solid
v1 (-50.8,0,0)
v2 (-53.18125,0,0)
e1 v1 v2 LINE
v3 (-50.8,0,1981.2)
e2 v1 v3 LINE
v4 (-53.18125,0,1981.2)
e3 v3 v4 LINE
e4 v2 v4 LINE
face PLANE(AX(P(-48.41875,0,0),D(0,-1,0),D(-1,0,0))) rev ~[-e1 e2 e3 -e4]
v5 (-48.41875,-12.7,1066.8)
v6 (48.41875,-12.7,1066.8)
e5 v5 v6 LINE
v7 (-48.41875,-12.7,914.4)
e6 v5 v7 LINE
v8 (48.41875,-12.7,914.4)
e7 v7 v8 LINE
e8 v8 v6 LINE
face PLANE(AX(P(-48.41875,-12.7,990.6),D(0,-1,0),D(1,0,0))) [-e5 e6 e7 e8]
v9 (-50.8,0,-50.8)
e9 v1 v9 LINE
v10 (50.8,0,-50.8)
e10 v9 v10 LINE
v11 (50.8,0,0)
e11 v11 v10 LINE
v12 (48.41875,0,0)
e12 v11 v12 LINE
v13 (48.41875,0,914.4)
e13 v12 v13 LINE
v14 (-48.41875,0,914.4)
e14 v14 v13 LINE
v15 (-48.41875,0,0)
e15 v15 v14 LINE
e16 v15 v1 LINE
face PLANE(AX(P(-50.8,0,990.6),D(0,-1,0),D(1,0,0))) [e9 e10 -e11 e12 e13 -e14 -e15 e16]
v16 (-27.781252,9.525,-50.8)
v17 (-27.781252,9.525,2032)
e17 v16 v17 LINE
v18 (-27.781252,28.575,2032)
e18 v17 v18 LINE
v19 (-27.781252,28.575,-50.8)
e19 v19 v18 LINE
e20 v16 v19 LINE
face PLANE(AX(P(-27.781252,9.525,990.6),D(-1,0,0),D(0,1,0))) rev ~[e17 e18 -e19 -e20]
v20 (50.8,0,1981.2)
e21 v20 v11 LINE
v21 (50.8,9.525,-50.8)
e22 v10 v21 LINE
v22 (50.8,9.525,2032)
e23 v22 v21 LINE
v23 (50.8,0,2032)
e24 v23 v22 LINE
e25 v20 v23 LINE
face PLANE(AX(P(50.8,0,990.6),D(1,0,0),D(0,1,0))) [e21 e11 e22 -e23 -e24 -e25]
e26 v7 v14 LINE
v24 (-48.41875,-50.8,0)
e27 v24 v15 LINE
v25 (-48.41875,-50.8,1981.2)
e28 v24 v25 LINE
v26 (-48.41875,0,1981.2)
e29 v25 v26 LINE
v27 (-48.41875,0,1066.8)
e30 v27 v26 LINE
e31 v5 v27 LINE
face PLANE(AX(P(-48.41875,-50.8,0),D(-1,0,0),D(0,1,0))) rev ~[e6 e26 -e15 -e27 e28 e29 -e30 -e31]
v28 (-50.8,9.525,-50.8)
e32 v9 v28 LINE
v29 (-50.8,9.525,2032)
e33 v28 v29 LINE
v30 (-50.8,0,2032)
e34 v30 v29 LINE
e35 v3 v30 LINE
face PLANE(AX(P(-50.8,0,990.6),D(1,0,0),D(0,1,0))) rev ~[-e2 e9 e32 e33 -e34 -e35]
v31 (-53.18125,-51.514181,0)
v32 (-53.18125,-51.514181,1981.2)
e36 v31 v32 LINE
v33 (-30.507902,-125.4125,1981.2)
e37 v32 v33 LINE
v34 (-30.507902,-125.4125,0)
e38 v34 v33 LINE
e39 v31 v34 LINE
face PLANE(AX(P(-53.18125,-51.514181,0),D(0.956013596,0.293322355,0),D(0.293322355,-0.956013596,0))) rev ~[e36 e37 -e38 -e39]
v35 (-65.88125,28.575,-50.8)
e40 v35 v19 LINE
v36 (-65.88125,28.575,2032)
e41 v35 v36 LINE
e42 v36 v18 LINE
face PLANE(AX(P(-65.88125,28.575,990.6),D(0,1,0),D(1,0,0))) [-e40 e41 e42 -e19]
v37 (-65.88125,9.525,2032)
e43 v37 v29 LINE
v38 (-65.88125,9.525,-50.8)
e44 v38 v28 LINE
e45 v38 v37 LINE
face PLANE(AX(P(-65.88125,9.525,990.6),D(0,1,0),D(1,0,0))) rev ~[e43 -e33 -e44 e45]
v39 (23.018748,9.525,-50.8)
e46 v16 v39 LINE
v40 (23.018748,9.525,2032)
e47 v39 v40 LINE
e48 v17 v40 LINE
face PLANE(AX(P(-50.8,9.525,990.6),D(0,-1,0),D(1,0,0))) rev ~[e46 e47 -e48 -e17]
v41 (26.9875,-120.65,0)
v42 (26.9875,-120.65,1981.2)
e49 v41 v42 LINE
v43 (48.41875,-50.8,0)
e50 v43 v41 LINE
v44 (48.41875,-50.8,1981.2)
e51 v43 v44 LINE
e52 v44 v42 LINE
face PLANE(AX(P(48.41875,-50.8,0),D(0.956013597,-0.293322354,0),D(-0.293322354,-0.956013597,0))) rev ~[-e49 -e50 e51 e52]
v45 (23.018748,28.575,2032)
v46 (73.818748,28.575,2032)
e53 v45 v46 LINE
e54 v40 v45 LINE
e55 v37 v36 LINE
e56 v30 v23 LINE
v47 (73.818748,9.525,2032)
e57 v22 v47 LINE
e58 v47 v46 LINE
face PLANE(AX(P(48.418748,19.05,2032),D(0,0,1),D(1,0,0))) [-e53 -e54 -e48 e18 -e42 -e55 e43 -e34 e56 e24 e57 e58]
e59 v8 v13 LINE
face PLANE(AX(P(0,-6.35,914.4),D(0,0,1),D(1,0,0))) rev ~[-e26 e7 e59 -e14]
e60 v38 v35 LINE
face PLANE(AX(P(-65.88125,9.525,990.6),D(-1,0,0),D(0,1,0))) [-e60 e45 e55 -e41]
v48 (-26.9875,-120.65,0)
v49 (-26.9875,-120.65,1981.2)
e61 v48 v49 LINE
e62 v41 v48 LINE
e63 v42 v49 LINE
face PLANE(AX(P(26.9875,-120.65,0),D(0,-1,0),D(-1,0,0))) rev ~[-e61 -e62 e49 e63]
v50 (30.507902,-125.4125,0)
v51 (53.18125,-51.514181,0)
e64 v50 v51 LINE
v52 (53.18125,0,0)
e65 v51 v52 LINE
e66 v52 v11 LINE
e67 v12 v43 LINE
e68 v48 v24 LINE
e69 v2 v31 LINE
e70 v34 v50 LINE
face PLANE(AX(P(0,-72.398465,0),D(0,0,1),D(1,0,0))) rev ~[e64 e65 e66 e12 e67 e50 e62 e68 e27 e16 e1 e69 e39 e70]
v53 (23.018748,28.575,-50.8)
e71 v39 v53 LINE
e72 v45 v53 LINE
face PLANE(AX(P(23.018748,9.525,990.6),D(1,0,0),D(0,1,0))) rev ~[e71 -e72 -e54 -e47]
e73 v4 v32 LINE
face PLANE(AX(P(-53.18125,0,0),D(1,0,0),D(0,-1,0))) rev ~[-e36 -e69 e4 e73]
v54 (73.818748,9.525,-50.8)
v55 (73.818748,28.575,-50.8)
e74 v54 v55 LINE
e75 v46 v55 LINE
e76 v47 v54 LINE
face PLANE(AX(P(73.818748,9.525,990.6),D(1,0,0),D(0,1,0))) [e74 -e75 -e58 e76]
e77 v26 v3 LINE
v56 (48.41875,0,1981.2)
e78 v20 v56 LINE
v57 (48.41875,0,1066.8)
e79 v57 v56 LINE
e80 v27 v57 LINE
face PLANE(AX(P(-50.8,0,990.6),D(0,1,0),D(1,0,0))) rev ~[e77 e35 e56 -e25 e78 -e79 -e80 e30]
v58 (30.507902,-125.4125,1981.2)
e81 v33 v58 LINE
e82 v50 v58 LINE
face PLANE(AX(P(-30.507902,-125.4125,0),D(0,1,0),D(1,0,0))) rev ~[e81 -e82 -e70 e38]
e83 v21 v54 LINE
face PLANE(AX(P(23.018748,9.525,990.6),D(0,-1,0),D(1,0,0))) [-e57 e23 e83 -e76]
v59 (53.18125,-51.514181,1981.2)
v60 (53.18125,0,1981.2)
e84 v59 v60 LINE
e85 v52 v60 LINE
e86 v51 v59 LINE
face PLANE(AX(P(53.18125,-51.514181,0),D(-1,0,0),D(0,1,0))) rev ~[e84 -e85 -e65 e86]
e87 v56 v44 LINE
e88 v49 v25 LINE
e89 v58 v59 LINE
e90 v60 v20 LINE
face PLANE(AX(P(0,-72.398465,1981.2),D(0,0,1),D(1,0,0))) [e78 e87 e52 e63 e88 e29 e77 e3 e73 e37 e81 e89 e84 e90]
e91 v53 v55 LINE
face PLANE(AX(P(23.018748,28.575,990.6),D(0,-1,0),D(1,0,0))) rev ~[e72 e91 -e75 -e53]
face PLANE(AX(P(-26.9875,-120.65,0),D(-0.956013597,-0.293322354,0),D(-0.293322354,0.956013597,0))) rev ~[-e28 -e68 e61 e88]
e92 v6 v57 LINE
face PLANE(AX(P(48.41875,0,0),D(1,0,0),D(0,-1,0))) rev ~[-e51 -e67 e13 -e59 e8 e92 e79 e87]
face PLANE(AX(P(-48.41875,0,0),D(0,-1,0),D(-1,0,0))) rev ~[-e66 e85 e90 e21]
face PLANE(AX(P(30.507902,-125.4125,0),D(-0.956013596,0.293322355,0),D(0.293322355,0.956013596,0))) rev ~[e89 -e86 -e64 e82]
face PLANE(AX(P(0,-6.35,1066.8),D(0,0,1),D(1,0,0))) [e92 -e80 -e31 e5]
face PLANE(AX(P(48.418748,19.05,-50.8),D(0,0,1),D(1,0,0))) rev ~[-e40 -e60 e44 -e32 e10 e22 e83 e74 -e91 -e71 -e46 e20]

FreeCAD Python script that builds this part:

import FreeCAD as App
import Part
import Sketcher

V = App.Vector
Q = App.Units.Quantity

doc = App.newDocument("Part")
body = doc.addObject("PartDesign::Body", "Body")

# Sketch on XY plane
sketch1 = doc.addObject("Sketcher::SketchObject", "Sketch")
body.addObject(sketch1)
sketch1.AttachmentSupport = (doc.XY_Plane, [""])
sketch1.MapMode = "FlatFace"
sketch1.addGeometry([
    Part.LineSegment(V(-48.4, -50.8, 0), V(-48.4, 0, 0)),  # 0
    Part.LineSegment(V(-48.4, 0, 0), V(-53.2, 0, 0)),  # 1
    Part.LineSegment(V(-53.2, 0, 0), V(-53.2, -51.5, 0)),  # 2
    Part.LineSegment(V(-53.2, -51.5, 0), V(-30.5, -125.4, 0)),  # 3
    Part.LineSegment(V(-30.5, -125.4, 0), V(30.5, -125.4, 0)),  # 4
    Part.LineSegment(V(30.5, -125.4, 0), V(53.2, -51.5, 0)),  # 5
    Part.LineSegment(V(53.2, -51.5, 0), V(53.2, 0, 0)),  # 6
    Part.LineSegment(V(53.2, 0, 0), V(48.4, 0, 0)),  # 7
    Part.LineSegment(V(48.4, 0, 0), V(48.4, -50.8, 0)),  # 8
    Part.LineSegment(V(48.4, -50.8, 0), V(27, -120.7, 0)),  # 9
    Part.LineSegment(V(27, -120.7, 0), V(-27, -120.7, 0)),  # 10
    Part.LineSegment(V(-27, -120.7, 0), V(-48.4, -50.8, 0)),  # 11
], False)
sketch1.addConstraint([
    Sketcher.Constraint("Coincident", 0, 2, 1, 1),
    Sketcher.Constraint("Coincident", 1, 2, 2, 1),
    Sketcher.Constraint("Coincident", 2, 2, 3, 1),
    Sketcher.Constraint("Coincident", 3, 2, 4, 1),
    Sketcher.Constraint("Coincident", 4, 2, 5, 1),
    Sketcher.Constraint("Coincident", 5, 2, 6, 1),
    Sketcher.Constraint("Coincident", 6, 2, 7, 1),
    Sketcher.Constraint("Coincident", 7, 2, 8, 1),
    Sketcher.Constraint("Coincident", 8, 2, 9, 1),
    Sketcher.Constraint("Coincident", 9, 2, 10, 1),
    Sketcher.Constraint("Coincident", 10, 2, 11, 1),
    Sketcher.Constraint("Coincident", 11, 2, 0, 1),
    Sketcher.Constraint("Vertical", 0),
    Sketcher.Constraint("Horizontal", 1),
    Sketcher.Constraint("Vertical", 2),
    Sketcher.Constraint("Horizontal", 4),
    Sketcher.Constraint("Vertical", 6),
    Sketcher.Constraint("Horizontal", 7),
    Sketcher.Constraint("Vertical", 8),
    Sketcher.Constraint("Horizontal", 10),
    Sketcher.Constraint("Symmetric", 1, 2, 6, 2, -1, 1),
    Sketcher.Constraint("Symmetric", 0, 2, 7, 2, -2),
    Sketcher.Constraint("Parallel", 5, 9),
    Sketcher.Constraint("Parallel", 3, 11),
    Sketcher.Constraint("Horizontal", 2, 2, 5, 2),
    Sketcher.Constraint("Horizontal", 8, 2, 11, 2),
    Sketcher.Constraint("Equal", 3, 5),
    Sketcher.Constraint("DistanceY", 0, 1, 0, 2, Q("2 in")),
    Sketcher.Constraint("DistanceX", 0, 2, 5, 2, Q("4 in")),
    Sketcher.Constraint("DistanceX", 1, 2, 1, 1, Q("0.1875 in")),
    Sketcher.Constraint("DistanceX", 10, 2, 10, 1, Q("2.125 in")),
    Sketcher.Constraint("DistanceY", 9, 2, -1, 1, Q("4.75 in")),
    Sketcher.Constraint("DistanceY", 3, 2, -1, 1, Q("4.9375 in")),
    Sketcher.Constraint("DistanceY", 2, 2, 2, 1, Q("51.514181 mm")),
])
pad1 = doc.addObject("PartDesign::Pad", "Pad")
body.addObject(pad1)
pad1.Profile = sketch1
pad1.Length = Q("78 in")

# Sketch on XY plane
sketch2 = doc.addObject("Sketcher::SketchObject", "Sketch001")
body.addObject(sketch2)
sketch2.AttachmentSupport = (doc.XY_Plane, [""])
sketch2.MapMode = "FlatFace"
sketch2.AttachmentOffset = App.Placement(V(0, 0, 39 * 25.4), App.Rotation())
sketch2.addGeometry([
    Part.LineSegment(V(-48, 0, 0), V(-48, -13, 0)),
    Part.LineSegment(V(-48, -13, 0), V(48, -13, 0)),
    Part.LineSegment(V(48, -13, 0), V(48, 0, 0)),
    Part.LineSegment(V(48, 0, 0), V(-48, 0, 0)),
], False)
sketch2.addConstraint([
    Sketcher.Constraint("Coincident", 0, 2, 1, 1),
    Sketcher.Constraint("Coincident", 1, 2, 2, 1),
    Sketcher.Constraint("Coincident", 2, 2, 3, 1),
    Sketcher.Constraint("Coincident", 3, 2, 0, 1),
    Sketcher.Constraint("Vertical", 0),
    Sketcher.Constraint("Horizontal", 1),
    Sketcher.Constraint("Vertical", 2),
    Sketcher.Constraint("Horizontal", 3),
    Sketcher.Constraint("Symmetric", 2, 2, 3, 2, -1, 1),
    Sketcher.Constraint("DistanceY", 0, 2, 0, 1, Q("0.5 in")),
    Sketcher.Constraint("DistanceX", 1, 1, 1, 2, Q("3.8125 in")),
])
pad2 = doc.addObject("PartDesign::Pad", "Pad001")
body.addObject(pad2)
pad2.Profile = sketch2
pad2.Type = "TwoLengths"
pad2.Length = Q("3 in")
pad2.Length2 = Q("3 in")

# Sketch on XY plane
sketch3 = doc.addObject("Sketcher::SketchObject", "Sketch002")
body.addObject(sketch3)
sketch3.AttachmentSupport = (doc.XY_Plane, [""])
sketch3.MapMode = "FlatFace"
sketch3.AttachmentOffset = App.Placement(V(0, 0, 39 * 25.4), App.Rotation())
sketch3.addGeometry([
    Part.LineSegment(V(-51, 10, 0), V(-51, 0, 0)),
    Part.LineSegment(V(-51, 0, 0), V(51, 0, 0)),
    Part.LineSegment(V(51, 0, 0), V(51, 10, 0)),
    Part.LineSegment(V(51, 10, 0), V(-51, 10, 0)),
], False)
sketch3.addConstraint([
    Sketcher.Constraint("Coincident", 0, 2, 1, 1),
    Sketcher.Constraint("Coincident", 1, 2, 2, 1),
    Sketcher.Constraint("Coincident", 2, 2, 3, 1),
    Sketcher.Constraint("Coincident", 3, 2, 0, 1),
    Sketcher.Constraint("Vertical", 0),
    Sketcher.Constraint("Horizontal", 1),
    Sketcher.Constraint("Vertical", 2),
    Sketcher.Constraint("Horizontal", 3),
    Sketcher.Constraint("Symmetric", 0, 2, 1, 2, -1, 1),
    Sketcher.Constraint("DistanceX", 1, 1, 1, 2, Q("4 in")),
    Sketcher.Constraint("DistanceY", 0, 2, 0, 1, Q("0.375 in")),
])
pad3 = doc.addObject("PartDesign::Pad", "Pad002")
body.addObject(pad3)
pad3.Profile = sketch3
pad3.Type = "TwoLengths"
pad3.Length = Q("41 in")
pad3.Length2 = Q("41 in")

# Sketch on XY plane
sketch4 = doc.addObject("Sketcher::SketchObject", "Sketch003")
body.addObject(sketch4)
sketch4.AttachmentSupport = (doc.XY_Plane, [""])
sketch4.MapMode = "FlatFace"
sketch4.AttachmentOffset = App.Placement(V(0, 0, 39 * 25.4), App.Rotation())
sketch4.addGeometry([
    Part.LineSegment(V(23, 29, 0), V(23, 10, 0)),  # 0
    Part.LineSegment(V(23, 10, 0), V(74, 10, 0)),  # 1
    Part.LineSegment(V(74, 10, 0), V(74, 29, 0)),  # 2
    Part.LineSegment(V(74, 29, 0), V(23, 29, 0)),  # 3
    Part.LineSegment(V(-66, 29, 0), V(-66, 10, 0)),  # 4
    Part.LineSegment(V(-66, 10, 0), V(-28, 10, 0)),  # 5
    Part.LineSegment(V(-28, 10, 0), V(-28, 29, 0)),  # 6
    Part.LineSegment(V(-28, 29, 0), V(-66, 29, 0)),  # 7
], False)
sketch4.addConstraint([
    Sketcher.Constraint("Coincident", 0, 2, 1, 1),
    Sketcher.Constraint("Coincident", 1, 2, 2, 1),
    Sketcher.Constraint("Coincident", 2, 2, 3, 1),
    Sketcher.Constraint("Coincident", 3, 2, 0, 1),
    Sketcher.Constraint("Coincident", 4, 2, 5, 1),
    Sketcher.Constraint("Coincident", 5, 2, 6, 1),
    Sketcher.Constraint("Coincident", 6, 2, 7, 1),
    Sketcher.Constraint("Coincident", 7, 2, 4, 1),
    Sketcher.Constraint("Vertical", 0),
    Sketcher.Constraint("Horizontal", 1),
    Sketcher.Constraint("Vertical", 2),
    Sketcher.Constraint("Horizontal", 3),
    Sketcher.Constraint("Vertical", 4),
    Sketcher.Constraint("Horizontal", 5),
    Sketcher.Constraint("Vertical", 6),
    Sketcher.Constraint("Horizontal", 7),
    Sketcher.Constraint("Horizontal", 1, 2, 4, 2),
    Sketcher.Constraint("Horizontal", 3, 2, 6, 2),
    Sketcher.Constraint("DistanceX", 1, 1, 1, 2, Q("2 in")),
    Sketcher.Constraint("DistanceX", 5, 1, 5, 2, Q("1.4999999 in")),
    Sketcher.Constraint("DistanceX", 5, 2, 0, 2, Q("2 in")),
    Sketcher.Constraint("DistanceY", 0, 2, 0, 1, Q("0.75 in")),
    Sketcher.Constraint("DistanceX", -1, 1, 0, 2, Q("0.9062499 in")),
    Sketcher.Constraint("DistanceY", -1, 1, 0, 2, Q("0.375 in")),
])
pad4 = doc.addObject("PartDesign::Pad", "Pad003")
body.addObject(pad4)
pad4.Profile = sketch4
pad4.Type = "TwoLengths"
pad4.Length = Q("41 in")
pad4.Length2 = Q("41 in")

doc.recompute()
